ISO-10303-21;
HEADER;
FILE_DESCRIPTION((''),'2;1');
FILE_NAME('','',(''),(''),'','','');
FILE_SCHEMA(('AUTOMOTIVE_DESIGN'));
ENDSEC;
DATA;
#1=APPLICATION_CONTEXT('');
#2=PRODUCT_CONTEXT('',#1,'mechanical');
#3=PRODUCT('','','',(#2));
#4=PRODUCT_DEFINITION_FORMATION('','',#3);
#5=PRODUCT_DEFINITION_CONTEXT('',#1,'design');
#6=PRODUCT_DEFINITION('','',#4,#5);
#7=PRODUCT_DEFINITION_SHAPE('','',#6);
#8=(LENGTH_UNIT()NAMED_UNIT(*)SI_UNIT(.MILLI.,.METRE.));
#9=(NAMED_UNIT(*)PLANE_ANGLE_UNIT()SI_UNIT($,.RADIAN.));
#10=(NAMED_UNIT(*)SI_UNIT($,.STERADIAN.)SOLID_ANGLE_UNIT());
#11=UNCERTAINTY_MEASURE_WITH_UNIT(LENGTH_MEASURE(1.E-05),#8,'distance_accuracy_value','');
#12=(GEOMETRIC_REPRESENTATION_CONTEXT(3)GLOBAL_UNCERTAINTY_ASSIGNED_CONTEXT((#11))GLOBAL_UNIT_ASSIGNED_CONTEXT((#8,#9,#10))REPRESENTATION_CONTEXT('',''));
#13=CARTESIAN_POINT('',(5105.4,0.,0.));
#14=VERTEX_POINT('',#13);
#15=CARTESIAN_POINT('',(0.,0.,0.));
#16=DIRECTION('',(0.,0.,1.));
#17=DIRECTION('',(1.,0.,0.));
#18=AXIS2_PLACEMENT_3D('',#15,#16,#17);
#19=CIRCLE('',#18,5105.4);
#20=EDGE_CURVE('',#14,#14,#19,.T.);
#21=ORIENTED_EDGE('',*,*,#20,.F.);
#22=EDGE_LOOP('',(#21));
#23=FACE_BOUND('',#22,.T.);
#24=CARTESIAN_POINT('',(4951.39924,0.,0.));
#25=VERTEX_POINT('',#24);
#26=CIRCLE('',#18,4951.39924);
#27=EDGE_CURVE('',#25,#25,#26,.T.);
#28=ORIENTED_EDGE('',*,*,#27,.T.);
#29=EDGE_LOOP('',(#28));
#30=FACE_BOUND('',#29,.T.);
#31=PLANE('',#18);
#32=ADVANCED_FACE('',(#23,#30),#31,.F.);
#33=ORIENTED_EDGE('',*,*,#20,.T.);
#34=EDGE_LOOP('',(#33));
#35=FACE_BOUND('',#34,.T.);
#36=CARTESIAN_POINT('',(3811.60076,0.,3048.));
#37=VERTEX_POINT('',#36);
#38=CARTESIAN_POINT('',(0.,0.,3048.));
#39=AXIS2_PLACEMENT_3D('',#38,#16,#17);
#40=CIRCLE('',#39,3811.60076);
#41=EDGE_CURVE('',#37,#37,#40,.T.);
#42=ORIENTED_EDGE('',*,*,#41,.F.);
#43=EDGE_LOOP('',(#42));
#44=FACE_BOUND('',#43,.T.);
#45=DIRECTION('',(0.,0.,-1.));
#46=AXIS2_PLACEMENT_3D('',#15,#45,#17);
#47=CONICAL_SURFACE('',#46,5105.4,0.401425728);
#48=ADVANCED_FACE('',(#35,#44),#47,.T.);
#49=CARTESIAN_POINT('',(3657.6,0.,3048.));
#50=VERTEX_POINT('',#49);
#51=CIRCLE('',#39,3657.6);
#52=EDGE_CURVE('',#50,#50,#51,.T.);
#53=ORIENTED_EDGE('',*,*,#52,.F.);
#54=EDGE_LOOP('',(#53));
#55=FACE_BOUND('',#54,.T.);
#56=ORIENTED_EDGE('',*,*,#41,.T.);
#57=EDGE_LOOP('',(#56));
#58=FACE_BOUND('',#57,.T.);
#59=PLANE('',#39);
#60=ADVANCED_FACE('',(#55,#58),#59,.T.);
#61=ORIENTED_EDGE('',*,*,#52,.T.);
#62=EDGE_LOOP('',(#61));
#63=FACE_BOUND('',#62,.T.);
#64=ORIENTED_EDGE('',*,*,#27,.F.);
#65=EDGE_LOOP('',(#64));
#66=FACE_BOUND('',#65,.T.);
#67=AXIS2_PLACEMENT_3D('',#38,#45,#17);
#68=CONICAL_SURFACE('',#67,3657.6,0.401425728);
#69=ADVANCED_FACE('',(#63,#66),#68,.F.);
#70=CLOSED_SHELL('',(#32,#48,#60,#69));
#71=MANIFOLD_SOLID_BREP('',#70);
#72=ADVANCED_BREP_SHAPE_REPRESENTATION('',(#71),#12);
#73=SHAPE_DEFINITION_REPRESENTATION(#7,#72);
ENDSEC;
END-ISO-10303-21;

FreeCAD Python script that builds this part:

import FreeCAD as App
import Part
import Sketcher

V = App.Vector
Q = App.Units.Quantity


def faces_at(feature, points):
    """Names of the faces that lie closest to the given points."""
    faces = feature.Shape.Faces
    near = lambda p: min(range(len(faces)), key=lambda i: faces[i].distToShape(Part.Vertex(*p))[0])
    return sorted({f"Face{near(p) + 1}" for p in points})

doc = App.newDocument("Part")
body = doc.addObject("PartDesign::Body", "Body")

sketch1 = body.newObject("Sketcher::SketchObject", "Sketch")
sketch1.AttachmentSupport = (doc.getObject("XY_Plane"), [""])
sketch1.MapMode = "FlatFace"
sketch1.addGeometry(Part.Circle(V(0, 0, 0), V(0, 0, 1), 5105), False)
sketch1.addConstraint(Sketcher.Constraint("Coincident", 0, 3, -1, 1))
sketch1.addConstraint(Sketcher.Constraint("Diameter", 0, Q("402 in")))
pad1 = body.newObject("PartDesign::Pad", "Pad")
pad1.Profile = sketch1
pad1.Length = Q("120 in")
pad1.TaperAngle = -23
body2 = doc.addObject("PartDesign::Body", "Body001")

sketch2 = body2.newObject("Sketcher::SketchObject", "Sketch001")
sketch2.AttachmentSupport = (doc.getObject("XY_Plane001"), [""])
sketch2.MapMode = "FlatFace"
sketch2.AttachmentOffset = App.Placement(V(0, 0, 120 * 25.4), App.Rotation())
sketch2.addGeometry(Part.Circle(V(0, 0, 0), V(0, 0, 1), 3658), False)
sketch2.addConstraint(Sketcher.Constraint("Coincident", 0, 3, -1, 1))
sketch2.addConstraint(Sketcher.Constraint("Diameter", 0, Q("288 in")))
pad2 = body2.newObject("PartDesign::Pad", "Pad001")
pad2.Profile = sketch2
pad2.Length = Q("120 in")
pad2.Reversed = True
doc.recompute()

datumplane = body2.newObject("PartDesign::Plane", "DatumPlane")
datumplane.AttachmentSupport = (doc.getObject("XY_Plane001"), [""])
datumplane.MapMode = "FlatFace"
datumplane.AttachmentOffset = App.Placement(V(0, 0, 120 * 25.4), App.Rotation())
draft = body2.newObject("PartDesign::Draft", "Draft")
draft.Base = (pad2, faces_at(pad2, [(-3657.6, 0, 1524)]))
draft.NeutralPlane = (datumplane, [""])
draft.Angle = 23
draft.Reversed = False
doc.recompute()

boolean = body.newObject("PartDesign::Boolean", "Boolean")
boolean.Type = "Cut"
boolean.addObjects([body2])

doc.recompute()
